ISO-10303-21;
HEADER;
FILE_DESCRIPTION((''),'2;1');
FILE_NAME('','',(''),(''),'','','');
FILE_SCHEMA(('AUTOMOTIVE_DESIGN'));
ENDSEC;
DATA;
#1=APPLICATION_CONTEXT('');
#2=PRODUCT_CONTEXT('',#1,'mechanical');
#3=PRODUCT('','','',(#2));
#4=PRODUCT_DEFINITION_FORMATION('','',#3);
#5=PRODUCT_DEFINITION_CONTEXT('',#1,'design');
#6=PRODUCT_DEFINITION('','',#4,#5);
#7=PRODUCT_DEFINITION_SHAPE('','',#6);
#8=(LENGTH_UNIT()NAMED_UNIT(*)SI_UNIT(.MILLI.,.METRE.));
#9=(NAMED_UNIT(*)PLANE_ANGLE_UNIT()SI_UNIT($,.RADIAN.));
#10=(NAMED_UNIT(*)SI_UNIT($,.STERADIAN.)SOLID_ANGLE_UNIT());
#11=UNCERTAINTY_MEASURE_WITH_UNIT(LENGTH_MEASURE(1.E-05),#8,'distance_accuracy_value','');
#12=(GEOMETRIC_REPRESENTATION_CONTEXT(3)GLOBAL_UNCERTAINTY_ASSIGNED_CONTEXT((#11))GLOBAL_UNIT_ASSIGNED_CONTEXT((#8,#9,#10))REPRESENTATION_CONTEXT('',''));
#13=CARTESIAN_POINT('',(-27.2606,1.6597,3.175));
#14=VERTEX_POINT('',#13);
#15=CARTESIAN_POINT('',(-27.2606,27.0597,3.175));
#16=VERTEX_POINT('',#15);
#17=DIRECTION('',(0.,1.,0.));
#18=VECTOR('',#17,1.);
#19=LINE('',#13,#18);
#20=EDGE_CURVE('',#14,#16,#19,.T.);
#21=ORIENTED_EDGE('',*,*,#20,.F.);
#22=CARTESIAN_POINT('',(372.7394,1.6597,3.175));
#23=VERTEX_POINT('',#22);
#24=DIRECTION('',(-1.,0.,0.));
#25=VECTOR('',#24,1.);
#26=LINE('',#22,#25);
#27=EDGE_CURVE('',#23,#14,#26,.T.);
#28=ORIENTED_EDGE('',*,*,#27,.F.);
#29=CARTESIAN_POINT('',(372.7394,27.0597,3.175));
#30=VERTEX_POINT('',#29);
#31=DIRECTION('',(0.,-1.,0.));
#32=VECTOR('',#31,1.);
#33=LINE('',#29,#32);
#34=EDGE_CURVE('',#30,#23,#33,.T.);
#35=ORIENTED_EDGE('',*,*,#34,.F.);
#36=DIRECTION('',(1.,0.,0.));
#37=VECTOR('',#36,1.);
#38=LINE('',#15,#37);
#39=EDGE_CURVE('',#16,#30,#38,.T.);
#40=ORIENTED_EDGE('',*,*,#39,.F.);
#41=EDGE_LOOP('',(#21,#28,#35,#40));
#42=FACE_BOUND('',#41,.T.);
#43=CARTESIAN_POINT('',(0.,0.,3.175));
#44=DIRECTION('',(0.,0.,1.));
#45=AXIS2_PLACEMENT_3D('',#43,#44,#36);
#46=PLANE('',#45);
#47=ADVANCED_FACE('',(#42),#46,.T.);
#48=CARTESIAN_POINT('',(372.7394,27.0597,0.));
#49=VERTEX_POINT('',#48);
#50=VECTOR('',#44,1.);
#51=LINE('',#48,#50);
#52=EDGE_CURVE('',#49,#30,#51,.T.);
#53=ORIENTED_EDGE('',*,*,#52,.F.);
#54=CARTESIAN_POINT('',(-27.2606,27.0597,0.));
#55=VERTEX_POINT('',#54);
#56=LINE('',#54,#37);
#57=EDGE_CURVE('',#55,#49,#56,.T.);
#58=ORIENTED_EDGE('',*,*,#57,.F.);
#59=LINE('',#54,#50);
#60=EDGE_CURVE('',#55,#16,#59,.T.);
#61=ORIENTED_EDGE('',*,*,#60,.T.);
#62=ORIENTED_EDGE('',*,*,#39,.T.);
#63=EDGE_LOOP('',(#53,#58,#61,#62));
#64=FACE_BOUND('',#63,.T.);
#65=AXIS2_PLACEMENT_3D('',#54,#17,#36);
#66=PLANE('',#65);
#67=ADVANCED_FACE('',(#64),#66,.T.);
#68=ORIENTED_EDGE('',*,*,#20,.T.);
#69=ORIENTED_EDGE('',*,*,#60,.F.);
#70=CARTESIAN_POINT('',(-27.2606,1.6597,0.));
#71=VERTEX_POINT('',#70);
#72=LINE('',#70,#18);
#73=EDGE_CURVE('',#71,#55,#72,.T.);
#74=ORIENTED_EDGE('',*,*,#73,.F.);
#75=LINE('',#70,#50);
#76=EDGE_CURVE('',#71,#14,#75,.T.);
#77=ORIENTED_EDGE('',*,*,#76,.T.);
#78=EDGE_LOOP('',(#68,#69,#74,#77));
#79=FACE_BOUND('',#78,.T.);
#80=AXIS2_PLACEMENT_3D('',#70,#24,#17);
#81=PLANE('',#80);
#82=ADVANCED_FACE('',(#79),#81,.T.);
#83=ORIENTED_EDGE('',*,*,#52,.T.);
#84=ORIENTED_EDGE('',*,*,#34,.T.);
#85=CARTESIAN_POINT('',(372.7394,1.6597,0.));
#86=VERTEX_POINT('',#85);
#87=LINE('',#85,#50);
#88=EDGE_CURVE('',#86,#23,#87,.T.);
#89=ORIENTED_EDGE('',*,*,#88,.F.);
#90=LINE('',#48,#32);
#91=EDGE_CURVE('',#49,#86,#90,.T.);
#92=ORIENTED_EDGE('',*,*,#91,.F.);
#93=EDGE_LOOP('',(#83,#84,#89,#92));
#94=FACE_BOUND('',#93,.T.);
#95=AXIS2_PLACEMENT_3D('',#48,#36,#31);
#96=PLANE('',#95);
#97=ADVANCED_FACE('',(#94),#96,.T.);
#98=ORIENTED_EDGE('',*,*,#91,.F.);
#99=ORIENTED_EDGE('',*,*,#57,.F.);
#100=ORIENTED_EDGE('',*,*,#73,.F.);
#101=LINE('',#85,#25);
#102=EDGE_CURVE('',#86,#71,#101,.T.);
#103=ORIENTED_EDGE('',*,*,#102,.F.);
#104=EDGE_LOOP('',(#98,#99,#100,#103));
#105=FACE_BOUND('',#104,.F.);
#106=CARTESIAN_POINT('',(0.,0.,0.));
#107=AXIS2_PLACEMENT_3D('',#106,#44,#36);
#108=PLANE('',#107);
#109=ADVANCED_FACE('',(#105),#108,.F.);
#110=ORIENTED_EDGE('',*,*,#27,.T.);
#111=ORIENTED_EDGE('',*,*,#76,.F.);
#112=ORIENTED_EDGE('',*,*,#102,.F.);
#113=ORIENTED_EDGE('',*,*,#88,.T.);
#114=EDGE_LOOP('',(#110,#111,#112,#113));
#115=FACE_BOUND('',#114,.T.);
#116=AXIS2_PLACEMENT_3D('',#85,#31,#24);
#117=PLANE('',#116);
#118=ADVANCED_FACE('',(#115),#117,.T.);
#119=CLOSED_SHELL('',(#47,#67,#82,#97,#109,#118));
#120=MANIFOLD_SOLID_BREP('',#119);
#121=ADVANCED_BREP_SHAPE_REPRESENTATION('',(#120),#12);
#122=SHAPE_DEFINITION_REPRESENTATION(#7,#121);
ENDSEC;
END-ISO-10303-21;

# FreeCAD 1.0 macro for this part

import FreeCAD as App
import Part
import Sketcher
Q = App.Units.Quantity


def add_polygon(sketch, points):
    """Adds a closed chain of lines whose ends are joined by coincident constraints."""
    first, n = sketch.GeometryCount, len(points)
    for a, b in zip(points, points[1:] + points[:1]):
        sketch.addGeometry(Part.LineSegment(App.Vector(*a, 0), App.Vector(*b, 0)), False)
    for i in range(n):
        sketch.addConstraint(Sketcher.Constraint("Coincident", first + i, 2, first + (i + 1) % n, 1))

doc = App.newDocument("Part")
body = doc.addObject("PartDesign::Body", "Body")

sketch1 = body.newObject("Sketcher::SketchObject", "Sketch")
sketch1.AttachmentSupport = (doc.getObject("XY_Plane"), [""])
sketch1.MapMode = "FlatFace"
add_polygon(sketch1, [(373, 27), (-27, 27), (-27, 2), (373, 2)])
sketch1.addConstraint(Sketcher.Constraint("Horizontal", 0))
sketch1.addConstraint(Sketcher.Constraint("Vertical", 1))
sketch1.addConstraint(Sketcher.Constraint("Horizontal", 2))
sketch1.addConstraint(Sketcher.Constraint("Vertical", 3))
sketch1.addConstraint(Sketcher.Constraint("DistanceY", 1, 2, 1, 1, Q("1 in")))
sketch1.addConstraint(Sketcher.Constraint("DistanceX", 0, 2, 0, 1, Q("400 mm")))
sketch1.addConstraint(Sketcher.Constraint("DistanceX", 0, 2, -1, 1, Q("27.2606 mm")))
sketch1.addConstraint(Sketcher.Constraint("DistanceY", -1, 1, 0, 2, Q("27.0597 mm")))
pad1 = body.newObject("PartDesign::Pad", "Pad")
pad1.Profile = sketch1
pad1.Length = Q("0.125 in")

doc.recompute()
